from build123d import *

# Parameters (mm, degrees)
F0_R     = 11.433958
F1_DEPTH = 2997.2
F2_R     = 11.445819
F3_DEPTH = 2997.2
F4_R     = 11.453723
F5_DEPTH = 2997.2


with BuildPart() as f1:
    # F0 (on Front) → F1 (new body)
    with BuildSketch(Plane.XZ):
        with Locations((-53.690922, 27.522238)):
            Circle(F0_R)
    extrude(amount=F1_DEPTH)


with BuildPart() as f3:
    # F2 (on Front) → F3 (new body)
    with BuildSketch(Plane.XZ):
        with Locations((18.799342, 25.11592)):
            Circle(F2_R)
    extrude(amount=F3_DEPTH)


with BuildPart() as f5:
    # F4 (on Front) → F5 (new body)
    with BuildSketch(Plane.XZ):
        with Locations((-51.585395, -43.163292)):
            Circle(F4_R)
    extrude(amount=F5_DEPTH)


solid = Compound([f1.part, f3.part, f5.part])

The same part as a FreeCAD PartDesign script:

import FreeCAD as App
import Part
import Sketcher

V = App.Vector
Q = App.Units.Quantity

doc = App.newDocument("Part")
body = doc.addObject("PartDesign::Body", "Body")

# Sketch on XZ plane
sketch1 = doc.addObject("Sketcher::SketchObject", "Sketch")
body.addObject(sketch1)
sketch1.AttachmentSupport = (doc.XZ_Plane, [""])
sketch1.MapMode = "FlatFace"
sketch1.addGeometry(Part.Circle(V(-54, 28, 0), V(0, 0, 1), 11), False)
sketch1.addConstraint([
    Sketcher.Constraint("Diameter", 0, 22.867916),
    Sketcher.Constraint("DistanceY", -1, 1, 0, 3, 27.522238),
    Sketcher.Constraint("DistanceX", 0, 3, -1, 1, 53.690922),
])
pad1 = doc.addObject("PartDesign::Pad", "Pad")
body.addObject(pad1)
pad1.Profile = sketch1
pad1.Length = Q("118 in")
body2 = doc.addObject("PartDesign::Body", "Body001")

# Sketch on XZ plane
sketch2 = doc.addObject("Sketcher::SketchObject", "Sketch001")
body2.addObject(sketch2)
sketch2.AttachmentSupport = (doc.getObject("XZ_Plane001"), [""])
sketch2.MapMode = "FlatFace"
sketch2.addGeometry(Part.Circle(V(19, 25, 0), V(0, 0, 1), 11), False)
sketch2.addConstraint([
    Sketcher.Constraint("Diameter", 0, 22.891638),
    Sketcher.Constraint("DistanceX", -1, 1, 0, 3, 18.799342),
    Sketcher.Constraint("DistanceY", -1, 1, 0, 3, 25.11592),
])
pad2 = doc.addObject("PartDesign::Pad", "Pad001")
body2.addObject(pad2)
pad2.Profile = sketch2
pad2.Length = Q("118 in")
body3 = doc.addObject("PartDesign::Body", "Body002")

# Sketch on XZ plane
sketch3 = doc.addObject("Sketcher::SketchObject", "Sketch002")
body3.addObject(sketch3)
sketch3.AttachmentSupport = (doc.getObject("XZ_Plane002"), [""])
sketch3.MapMode = "FlatFace"
sketch3.addGeometry(Part.Circle(V(-52, -43, 0), V(0, 0, 1), 11), False)
sketch3.addConstraint([
    Sketcher.Constraint("Diameter", 0, 22.907446),
    Sketcher.Constraint("DistanceY", 0, 3, -1, 1, 43.163292),
    Sketcher.Constraint("DistanceX", 0, 3, -1, 1, 51.585395),
])
pad3 = doc.addObject("PartDesign::Pad", "Pad002")
body3.addObject(pad3)
pad3.Profile = sketch3
pad3.Length = Q("118 in")

doc.recompute()
